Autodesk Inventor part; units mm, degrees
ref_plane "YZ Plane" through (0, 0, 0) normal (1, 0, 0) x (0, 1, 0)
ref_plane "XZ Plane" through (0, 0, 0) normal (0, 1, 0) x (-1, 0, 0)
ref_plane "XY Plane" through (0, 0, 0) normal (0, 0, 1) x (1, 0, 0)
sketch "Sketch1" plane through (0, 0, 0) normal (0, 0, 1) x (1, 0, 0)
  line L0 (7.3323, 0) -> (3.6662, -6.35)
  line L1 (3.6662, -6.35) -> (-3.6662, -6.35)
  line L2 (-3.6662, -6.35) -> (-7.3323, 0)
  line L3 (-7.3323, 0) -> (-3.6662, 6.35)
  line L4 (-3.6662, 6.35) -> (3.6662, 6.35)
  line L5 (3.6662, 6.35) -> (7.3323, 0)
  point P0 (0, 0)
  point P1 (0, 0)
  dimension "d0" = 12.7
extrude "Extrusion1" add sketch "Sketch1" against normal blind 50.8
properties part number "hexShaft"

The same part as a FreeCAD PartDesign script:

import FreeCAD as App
import Part
import Sketcher
Q = App.Units.Quantity

doc = App.newDocument("Part")
body = doc.addObject("PartDesign::Body", "Body")

sketch1 = body.newObject("Sketcher::SketchObject", "Sketch")
sketch1.AttachmentSupport = (doc.getObject("XY_Plane"), [""])
sketch1.MapMode = "FlatFace"
sketch1.addGeometry(Part.LineSegment(App.Vector(4, -6, 0), App.Vector(7, 0, 0)), False)
sketch1.addGeometry(Part.LineSegment(App.Vector(7, 0, 0), App.Vector(4, 6, 0)), False)
sketch1.addGeometry(Part.LineSegment(App.Vector(4, 6, 0), App.Vector(-4, 6, 0)), False)
sketch1.addGeometry(Part.LineSegment(App.Vector(-4, 6, 0), App.Vector(-7, 0, 0)), False)
sketch1.addGeometry(Part.LineSegment(App.Vector(-7, 0, 0), App.Vector(-4, -6, 0)), False)
sketch1.addGeometry(Part.LineSegment(App.Vector(-4, -6, 0), App.Vector(4, -6, 0)), False)
sketch1.addConstraint(Sketcher.Constraint("Coincident", 0, 2, 1, 1))
sketch1.addConstraint(Sketcher.Constraint("Coincident", 1, 2, 2, 1))
sketch1.addConstraint(Sketcher.Constraint("Coincident", 2, 2, 3, 1))
sketch1.addConstraint(Sketcher.Constraint("Coincident", 3, 2, 4, 1))
sketch1.addConstraint(Sketcher.Constraint("Coincident", 4, 2, 5, 1))
sketch1.addConstraint(Sketcher.Constraint("Coincident", 5, 2, 0, 1))
sketch1.addConstraint(Sketcher.Constraint("Horizontal", 2))
sketch1.addConstraint(Sketcher.Constraint("Horizontal", 5))
sketch1.addConstraint(Sketcher.Constraint("Symmetric", 0, 2, 3, 2, -1, 1))
sketch1.addConstraint(Sketcher.Constraint("Symmetric", 1, 2, 4, 2, -1, 1))
sketch1.addConstraint(Sketcher.Constraint("PointOnObject", 0, 2, -1))
sketch1.addConstraint(Sketcher.Constraint("Parallel", 0, 3))
sketch1.addConstraint(Sketcher.Constraint("Vertical", 2, 2, 4, 2))
sketch1.addConstraint(Sketcher.Constraint("DistanceY", 4, 2, 2, 2, Q("0.5 in")))
sketch1.addConstraint(Sketcher.Constraint("Angle", 0, Q("60.0005 deg")))
sketch1.addConstraint(Sketcher.Constraint("DistanceX", 2, 2, 0, 2, Q("0.433 in")))
pad1 = body.newObject("PartDesign::Pad", "Pad")
pad1.Profile = sketch1
pad1.Length = Q("2 in")
pad1.Reversed = True

doc.recompute()
